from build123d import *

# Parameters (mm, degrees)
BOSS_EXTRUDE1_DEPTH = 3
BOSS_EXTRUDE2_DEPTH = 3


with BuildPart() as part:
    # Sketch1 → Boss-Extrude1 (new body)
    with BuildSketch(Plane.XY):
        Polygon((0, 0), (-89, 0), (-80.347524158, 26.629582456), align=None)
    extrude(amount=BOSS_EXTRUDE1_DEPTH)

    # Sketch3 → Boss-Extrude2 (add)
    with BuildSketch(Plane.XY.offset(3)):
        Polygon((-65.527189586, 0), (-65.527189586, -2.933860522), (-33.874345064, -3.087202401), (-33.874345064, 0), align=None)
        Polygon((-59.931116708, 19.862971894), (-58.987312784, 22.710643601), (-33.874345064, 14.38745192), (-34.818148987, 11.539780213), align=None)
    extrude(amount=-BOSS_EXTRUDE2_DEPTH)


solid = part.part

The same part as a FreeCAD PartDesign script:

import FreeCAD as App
import Part
import Sketcher
from FreeCAD import Vector
Q = App.Units.Quantity

doc = App.newDocument("Part")
body = doc.addObject("PartDesign::Body", "Body")

# Sketch on XY plane
sketch1 = body.newObject("Sketcher::SketchObject", "Sketch")
sketch1.AttachmentSupport = (doc.getObject("XY_Plane"), [""])
sketch1.MapMode = "FlatFace"
sketch1.addGeometry([
    Part.LineSegment(Vector(-89, 0, 0), Vector(0, 0, 0)),
    Part.LineSegment(Vector(0, 0, 0), Vector(-80, 27, 0)),
    Part.LineSegment(Vector(-80, 27, 0), Vector(-89, 0, 0)),
], False)
sketch1.addConstraint([
    Sketcher.Constraint("Coincident", 0, 2, 1, 1),
    Sketcher.Constraint("Coincident", 1, 2, 2, 1),
    Sketcher.Constraint("Coincident", 2, 2, 0, 1),
    Sketcher.Constraint("Horizontal", 0),
    Sketcher.Constraint("Coincident", 0, 2, -1, 1),
    Sketcher.Constraint("DistanceX", 0, 1, 0, 2, 89.0),
    Sketcher.Constraint("Angle", 2, Q("-108 deg")),
    Sketcher.Constraint("Distance", 2, 28.0),
])
pad1 = body.newObject("PartDesign::Pad", "Pad")
pad1.Profile = sketch1
pad1.Length = 3

# Sketch on XY plane
sketch2 = body.newObject("Sketcher::SketchObject", "Sketch001")
sketch2.AttachmentSupport = (doc.getObject("XY_Plane"), [""])
sketch2.MapMode = "FlatFace"
sketch2.AttachmentOffset = App.Placement(Vector(0, 0, 3), App.Rotation())
sketch2.addGeometry([
    Part.LineSegment(Vector(-65.5, 0, 0), Vector(-65.5, -2.9, 0)),  # 0
    Part.LineSegment(Vector(-65.5, -2.9, 0), Vector(-33.9, -3.1, 0)),  # 1
    Part.LineSegment(Vector(-33.9, -3.1, 0), Vector(-33.9, 0, 0)),  # 2
    Part.LineSegment(Vector(-33.9, 0, 0), Vector(-65.5, 0, 0)),  # 3
    Part.LineSegment(Vector(-59, 22.7, 0), Vector(-59.9, 19.9, 0)),  # 4
    Part.LineSegment(Vector(-59.9, 19.9, 0), Vector(-34.8, 11.5, 0)),  # 5
    Part.LineSegment(Vector(-34.8, 11.5, 0), Vector(-33.9, 14.4, 0)),  # 6
    Part.LineSegment(Vector(-33.9, 14.4, 0), Vector(-59, 22.7, 0)),  # 7
], False)
sketch2.addConstraint([
    Sketcher.Constraint("Coincident", 0, 2, 1, 1),
    Sketcher.Constraint("Coincident", 1, 2, 2, 1),
    Sketcher.Constraint("Coincident", 2, 2, 3, 1),
    Sketcher.Constraint("Coincident", 3, 2, 0, 1),
    Sketcher.Constraint("Coincident", 4, 2, 5, 1),
    Sketcher.Constraint("Coincident", 5, 2, 6, 1),
    Sketcher.Constraint("Coincident", 6, 2, 7, 1),
    Sketcher.Constraint("Coincident", 7, 2, 4, 1),
    Sketcher.Constraint("Vertical", 0),
    Sketcher.Constraint("Vertical", 2),
    Sketcher.Constraint("Horizontal", 3),
    Sketcher.Constraint("PointOnObject", 2, 2, -1),
    Sketcher.Constraint("Perpendicular", 4, 5),
    Sketcher.Constraint("Perpendicular", 5, 6),
    Sketcher.Constraint("Perpendicular", 6, 7),
    Sketcher.Constraint("Vertical", 2, 2, 6, 2),
    Sketcher.Constraint("Distance", 4, 3.0),
    Sketcher.Constraint("DistanceY", 0, 2, 0, 1, 2.933861),
    Sketcher.Constraint("DistanceX", 3, 2, 3, 1, 31.652845),
    Sketcher.Constraint("DistanceY", 2, 1, 2, 2, 3.087202),
    Sketcher.Constraint("DistanceX", 0, 2, -1, 1, 65.52719),
    Sketcher.Constraint("DistanceY", -1, 1, 4, 2, 19.862972),
    Sketcher.Constraint("DistanceX", 5, 2, -1, 1, 34.818149),
    Sketcher.Constraint("DistanceY", -1, 1, 5, 2, 11.53978),
])
pad2 = body.newObject("PartDesign::Pad", "Pad001")
pad2.Profile = sketch2
pad2.Length = 3
pad2.Reversed = True

doc.recompute()
